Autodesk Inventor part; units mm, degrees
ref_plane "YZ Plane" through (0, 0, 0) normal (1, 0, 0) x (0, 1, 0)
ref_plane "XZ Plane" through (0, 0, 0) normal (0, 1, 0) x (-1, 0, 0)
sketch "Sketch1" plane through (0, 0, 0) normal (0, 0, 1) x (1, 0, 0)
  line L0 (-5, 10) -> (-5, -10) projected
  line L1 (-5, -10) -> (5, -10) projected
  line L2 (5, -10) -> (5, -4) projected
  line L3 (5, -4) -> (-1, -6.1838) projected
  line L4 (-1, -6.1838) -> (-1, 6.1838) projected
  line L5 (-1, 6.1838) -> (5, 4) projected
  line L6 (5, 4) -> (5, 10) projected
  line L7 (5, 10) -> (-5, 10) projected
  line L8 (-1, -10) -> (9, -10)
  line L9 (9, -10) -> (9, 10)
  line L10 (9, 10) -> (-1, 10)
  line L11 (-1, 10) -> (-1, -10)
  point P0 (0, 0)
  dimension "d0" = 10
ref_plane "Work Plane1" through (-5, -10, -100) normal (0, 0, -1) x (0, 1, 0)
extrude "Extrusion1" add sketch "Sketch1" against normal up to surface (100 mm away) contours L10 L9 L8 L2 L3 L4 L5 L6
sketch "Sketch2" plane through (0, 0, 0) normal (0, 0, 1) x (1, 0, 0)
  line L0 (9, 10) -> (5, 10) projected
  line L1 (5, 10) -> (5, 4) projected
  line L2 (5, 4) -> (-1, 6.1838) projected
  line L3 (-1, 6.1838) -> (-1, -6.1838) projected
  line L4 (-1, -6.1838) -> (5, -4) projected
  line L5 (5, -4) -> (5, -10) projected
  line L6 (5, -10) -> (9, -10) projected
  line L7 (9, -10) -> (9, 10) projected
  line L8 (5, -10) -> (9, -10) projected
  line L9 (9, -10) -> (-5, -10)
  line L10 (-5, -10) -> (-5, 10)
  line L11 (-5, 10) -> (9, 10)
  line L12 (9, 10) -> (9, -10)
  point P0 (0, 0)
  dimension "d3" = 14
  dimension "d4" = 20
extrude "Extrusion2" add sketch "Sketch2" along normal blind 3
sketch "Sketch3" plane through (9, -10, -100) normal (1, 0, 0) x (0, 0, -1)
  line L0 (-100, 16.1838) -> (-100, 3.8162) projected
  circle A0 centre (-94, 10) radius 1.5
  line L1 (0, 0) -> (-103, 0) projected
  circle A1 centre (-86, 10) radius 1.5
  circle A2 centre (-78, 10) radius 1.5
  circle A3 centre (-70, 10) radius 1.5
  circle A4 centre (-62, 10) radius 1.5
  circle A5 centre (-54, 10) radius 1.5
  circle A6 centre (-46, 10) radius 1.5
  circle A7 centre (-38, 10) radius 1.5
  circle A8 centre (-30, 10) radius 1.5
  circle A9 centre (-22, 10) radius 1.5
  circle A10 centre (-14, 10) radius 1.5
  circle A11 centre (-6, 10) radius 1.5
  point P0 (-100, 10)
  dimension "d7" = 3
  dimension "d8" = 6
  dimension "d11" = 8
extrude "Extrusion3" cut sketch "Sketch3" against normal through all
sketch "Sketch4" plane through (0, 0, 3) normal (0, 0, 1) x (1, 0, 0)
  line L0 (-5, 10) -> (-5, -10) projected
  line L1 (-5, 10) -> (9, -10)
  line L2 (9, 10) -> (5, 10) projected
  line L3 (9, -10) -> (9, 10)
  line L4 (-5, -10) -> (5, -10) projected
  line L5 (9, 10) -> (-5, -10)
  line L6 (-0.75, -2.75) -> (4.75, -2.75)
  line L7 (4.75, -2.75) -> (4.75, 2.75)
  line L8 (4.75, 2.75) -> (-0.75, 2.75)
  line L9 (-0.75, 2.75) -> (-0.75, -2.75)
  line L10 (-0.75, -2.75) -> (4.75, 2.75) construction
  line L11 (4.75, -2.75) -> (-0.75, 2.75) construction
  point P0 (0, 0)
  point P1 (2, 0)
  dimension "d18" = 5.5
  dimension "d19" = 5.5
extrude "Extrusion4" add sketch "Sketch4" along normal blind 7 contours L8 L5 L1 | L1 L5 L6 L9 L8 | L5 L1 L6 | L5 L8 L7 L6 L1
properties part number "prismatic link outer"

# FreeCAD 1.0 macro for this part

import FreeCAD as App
import Part
import Sketcher
Q = App.Units.Quantity

doc = App.newDocument("Part")
body = doc.addObject("PartDesign::Body", "Body")

# Sketch on XY plane
sketch1 = doc.addObject("Sketcher::SketchObject", "Sketch")
body.addObject(sketch1)
sketch1.AttachmentSupport = (doc.XY_Plane, [""])
sketch1.MapMode = "FlatFace"
sketch1.addGeometry([
    Part.LineSegment(App.Vector(9, 10, 0), App.Vector(5, 10, 0)),  # 0
    Part.LineSegment(App.Vector(5, 10, 0), App.Vector(5, 4, 0)),  # 1
    Part.LineSegment(App.Vector(5, 4, 0), App.Vector(-1, 6.2, 0)),  # 2
    Part.LineSegment(App.Vector(-1, 6.2, 0), App.Vector(-1, -6.2, 0)),  # 3
    Part.LineSegment(App.Vector(-1, -6.2, 0), App.Vector(5, -4, 0)),  # 4
    Part.LineSegment(App.Vector(5, -4, 0), App.Vector(5, -10, 0)),  # 5
    Part.LineSegment(App.Vector(5, -10, 0), App.Vector(9, -10, 0)),  # 6
    Part.LineSegment(App.Vector(9, -10, 0), App.Vector(9, 10, 0)),  # 7
], False)
sketch1.addConstraint([
    Sketcher.Constraint("Coincident", 0, 2, 1, 1),
    Sketcher.Constraint("Coincident", 1, 2, 2, 1),
    Sketcher.Constraint("Coincident", 2, 2, 3, 1),
    Sketcher.Constraint("Coincident", 3, 2, 4, 1),
    Sketcher.Constraint("Coincident", 4, 2, 5, 1),
    Sketcher.Constraint("Coincident", 5, 2, 6, 1),
    Sketcher.Constraint("Coincident", 6, 2, 7, 1),
    Sketcher.Constraint("Coincident", 7, 2, 0, 1),
    Sketcher.Constraint("Horizontal", 0),
    Sketcher.Constraint("Vertical", 1),
    Sketcher.Constraint("Vertical", 3),
    Sketcher.Constraint("Vertical", 5),
    Sketcher.Constraint("Horizontal", 6),
    Sketcher.Constraint("Vertical", 7),
    Sketcher.Constraint("Symmetric", 1, 2, 4, 2, -1),
    Sketcher.Constraint("Equal", 1, 5),
    Sketcher.Constraint("Equal", 2, 4),
    Sketcher.Constraint("DistanceY", -1, 1, 0, 2, 10.0),
    Sketcher.Constraint("DistanceX", 3, 2, 6, 2, 10.0),
    Sketcher.Constraint("DistanceX", 0, 2, 0, 1, 4.0),
    Sketcher.Constraint("DistanceY", 1, 2, 1, 1, 6.0),
    Sketcher.Constraint("Angle", 2, Q("160.0002 deg")),
    Sketcher.Constraint("DistanceX", -1, 1, 0, 2, 5.0),
])
pad1 = doc.addObject("PartDesign::Pad", "Pad")
body.addObject(pad1)
pad1.Profile = sketch1
pad1.Length = 100
pad1.Reversed = True

# Sketch on XY plane
sketch2 = doc.addObject("Sketcher::SketchObject", "Sketch001")
body.addObject(sketch2)
sketch2.AttachmentSupport = (doc.XY_Plane, [""])
sketch2.MapMode = "FlatFace"
sketch2.addGeometry([
    Part.LineSegment(App.Vector(9, -10, 0), App.Vector(9, 10, 0)),
    Part.LineSegment(App.Vector(9, 10, 0), App.Vector(-5, 10, 0)),
    Part.LineSegment(App.Vector(-5, 10, 0), App.Vector(-5, -10, 0)),
    Part.LineSegment(App.Vector(-5, -10, 0), App.Vector(9, -10, 0)),
], False)
sketch2.addConstraint([
    Sketcher.Constraint("Coincident", 0, 2, 1, 1),
    Sketcher.Constraint("Coincident", 1, 2, 2, 1),
    Sketcher.Constraint("Coincident", 2, 2, 3, 1),
    Sketcher.Constraint("Coincident", 3, 2, 0, 1),
    Sketcher.Constraint("Vertical", 0),
    Sketcher.Constraint("Horizontal", 1),
    Sketcher.Constraint("Vertical", 2),
    Sketcher.Constraint("Horizontal", 3),
    Sketcher.Constraint("DistanceX", 1, 2, 1, 1, 14.0),
    Sketcher.Constraint("DistanceY", 0, 1, 0, 2, 20.0),
    Sketcher.Constraint("DistanceX", -1, 1, 0, 2, 9.0),
    Sketcher.Constraint("DistanceY", -1, 1, 0, 2, 10.0),
])
pad2 = doc.addObject("PartDesign::Pad", "Pad001")
body.addObject(pad2)
pad2.Profile = sketch2
pad2.Length = 3

# Sketch on YZ plane
sketch3 = doc.addObject("Sketcher::SketchObject", "Sketch002")
body.addObject(sketch3)
sketch3.AttachmentSupport = (doc.YZ_Plane, [""])
sketch3.MapMode = "FlatFace"
sketch3.AttachmentOffset = App.Placement(App.Vector(0, 0, 9), App.Rotation())
sketch3.addGeometry([
    Part.Circle(App.Vector(0, -6, 0), App.Vector(0, 0, 1), 1.5),  # 0
    Part.Circle(App.Vector(0, -14, 0), App.Vector(0, 0, 1), 1.5),  # 1
    Part.Circle(App.Vector(0, -22, 0), App.Vector(0, 0, 1), 1.5),  # 2
    Part.Circle(App.Vector(0, -30, 0), App.Vector(0, 0, 1), 1.5),  # 3
    Part.Circle(App.Vector(0, -38, 0), App.Vector(0, 0, 1), 1.5),  # 4
    Part.Circle(App.Vector(0, -46, 0), App.Vector(0, 0, 1), 1.5),  # 5
    Part.Circle(App.Vector(0, -54, 0), App.Vector(0, 0, 1), 1.5),  # 6
    Part.Circle(App.Vector(0, -62, 0), App.Vector(0, 0, 1), 1.5),  # 7
    Part.Circle(App.Vector(0, -70, 0), App.Vector(0, 0, 1), 1.5),  # 8
    Part.Circle(App.Vector(0, -78, 0), App.Vector(0, 0, 1), 1.5),  # 9
    Part.Circle(App.Vector(0, -86, 0), App.Vector(0, 0, 1), 1.5),  # 10
    Part.Circle(App.Vector(0, -94, 0), App.Vector(0, 0, 1), 1.5),  # 11
], False)
sketch3.addConstraint([
    Sketcher.Constraint("Equal", 0, 1),
    Sketcher.Constraint("Equal", 1, 2),
    Sketcher.Constraint("Equal", 2, 3),
    Sketcher.Constraint("Equal", 3, 4),
    Sketcher.Constraint("Equal", 4, 5),
    Sketcher.Constraint("Equal", 5, 6),
    Sketcher.Constraint("Equal", 6, 7),
    Sketcher.Constraint("Equal", 7, 8),
    Sketcher.Constraint("Equal", 8, 9),
    Sketcher.Constraint("Equal", 9, 10),
    Sketcher.Constraint("Equal", 10, 11),
    Sketcher.Constraint("PointOnObject", 0, 3, -2),
    Sketcher.Constraint("PointOnObject", 1, 3, -2),
    Sketcher.Constraint("PointOnObject", 2, 3, -2),
    Sketcher.Constraint("PointOnObject", 3, 3, -2),
    Sketcher.Constraint("PointOnObject", 4, 3, -2),
    Sketcher.Constraint("PointOnObject", 5, 3, -2),
    Sketcher.Constraint("PointOnObject", 6, 3, -2),
    Sketcher.Constraint("PointOnObject", 7, 3, -2),
    Sketcher.Constraint("PointOnObject", 8, 3, -2),
    Sketcher.Constraint("PointOnObject", 9, 3, -2),
    Sketcher.Constraint("PointOnObject", 10, 3, -2),
    Sketcher.Constraint("PointOnObject", 11, 3, -2),
    Sketcher.Constraint("Diameter", 0, 3.0),
    Sketcher.Constraint("DistanceY", 0, 3, -1, 1, 6.0),
    Sketcher.Constraint("DistanceY", 1, 3, 0, 3, 8.0),
    Sketcher.Constraint("DistanceY", 2, 3, 1, 3, 8.0),
    Sketcher.Constraint("DistanceY", 3, 3, 2, 3, 8.0),
    Sketcher.Constraint("DistanceY", 4, 3, 3, 3, 8.0),
    Sketcher.Constraint("DistanceY", 5, 3, 4, 3, 8.0),
    Sketcher.Constraint("DistanceY", 6, 3, 5, 3, 8.0),
    Sketcher.Constraint("DistanceY", 7, 3, 6, 3, 8.0),
    Sketcher.Constraint("DistanceY", 8, 3, 7, 3, 8.0),
    Sketcher.Constraint("DistanceY", 9, 3, 8, 3, 8.0),
    Sketcher.Constraint("DistanceY", 10, 3, 9, 3, 8.0),
    Sketcher.Constraint("DistanceY", 11, 3, 10, 3, 8.0),
])
pocket1 = doc.addObject("PartDesign::Pocket", "Pocket")
body.addObject(pocket1)
pocket1.Profile = sketch3
pocket1.Type = "ThroughAll"

# Sketch on XY plane
sketch4 = doc.addObject("Sketcher::SketchObject", "Sketch003")
body.addObject(sketch4)
sketch4.AttachmentSupport = (doc.XY_Plane, [""])
sketch4.MapMode = "FlatFace"
sketch4.AttachmentOffset = App.Placement(App.Vector(0, 0, 3), App.Rotation())
sketch4.addGeometry([
    Part.LineSegment(App.Vector(-1, 3, 0), App.Vector(-1, -3, 0)),
    Part.LineSegment(App.Vector(-1, -3, 0), App.Vector(5, -3, 0)),
    Part.LineSegment(App.Vector(5, -3, 0), App.Vector(5, 3, 0)),
    Part.LineSegment(App.Vector(5, 3, 0), App.Vector(-1, 3, 0)),
], False)
sketch4.addConstraint([
    Sketcher.Constraint("Coincident", 0, 2, 1, 1),
    Sketcher.Constraint("Coincident", 1, 2, 2, 1),
    Sketcher.Constraint("Coincident", 2, 2, 3, 1),
    Sketcher.Constraint("Coincident", 3, 2, 0, 1),
    Sketcher.Constraint("Vertical", 0),
    Sketcher.Constraint("Horizontal", 1),
    Sketcher.Constraint("Vertical", 2),
    Sketcher.Constraint("Horizontal", 3),
    Sketcher.Constraint("Equal", 3, 0),
    Sketcher.Constraint("DistanceX", 1, 1, 1, 2, 5.5),
    Sketcher.Constraint("DistanceX", 0, 2, -1, 1, 0.75),
    Sketcher.Constraint("DistanceY", 0, 2, -1, 1, 2.75),
])
pad3 = doc.addObject("PartDesign::Pad", "Pad002")
body.addObject(pad3)
pad3.Profile = sketch4
pad3.Length = 7

doc.recompute()
